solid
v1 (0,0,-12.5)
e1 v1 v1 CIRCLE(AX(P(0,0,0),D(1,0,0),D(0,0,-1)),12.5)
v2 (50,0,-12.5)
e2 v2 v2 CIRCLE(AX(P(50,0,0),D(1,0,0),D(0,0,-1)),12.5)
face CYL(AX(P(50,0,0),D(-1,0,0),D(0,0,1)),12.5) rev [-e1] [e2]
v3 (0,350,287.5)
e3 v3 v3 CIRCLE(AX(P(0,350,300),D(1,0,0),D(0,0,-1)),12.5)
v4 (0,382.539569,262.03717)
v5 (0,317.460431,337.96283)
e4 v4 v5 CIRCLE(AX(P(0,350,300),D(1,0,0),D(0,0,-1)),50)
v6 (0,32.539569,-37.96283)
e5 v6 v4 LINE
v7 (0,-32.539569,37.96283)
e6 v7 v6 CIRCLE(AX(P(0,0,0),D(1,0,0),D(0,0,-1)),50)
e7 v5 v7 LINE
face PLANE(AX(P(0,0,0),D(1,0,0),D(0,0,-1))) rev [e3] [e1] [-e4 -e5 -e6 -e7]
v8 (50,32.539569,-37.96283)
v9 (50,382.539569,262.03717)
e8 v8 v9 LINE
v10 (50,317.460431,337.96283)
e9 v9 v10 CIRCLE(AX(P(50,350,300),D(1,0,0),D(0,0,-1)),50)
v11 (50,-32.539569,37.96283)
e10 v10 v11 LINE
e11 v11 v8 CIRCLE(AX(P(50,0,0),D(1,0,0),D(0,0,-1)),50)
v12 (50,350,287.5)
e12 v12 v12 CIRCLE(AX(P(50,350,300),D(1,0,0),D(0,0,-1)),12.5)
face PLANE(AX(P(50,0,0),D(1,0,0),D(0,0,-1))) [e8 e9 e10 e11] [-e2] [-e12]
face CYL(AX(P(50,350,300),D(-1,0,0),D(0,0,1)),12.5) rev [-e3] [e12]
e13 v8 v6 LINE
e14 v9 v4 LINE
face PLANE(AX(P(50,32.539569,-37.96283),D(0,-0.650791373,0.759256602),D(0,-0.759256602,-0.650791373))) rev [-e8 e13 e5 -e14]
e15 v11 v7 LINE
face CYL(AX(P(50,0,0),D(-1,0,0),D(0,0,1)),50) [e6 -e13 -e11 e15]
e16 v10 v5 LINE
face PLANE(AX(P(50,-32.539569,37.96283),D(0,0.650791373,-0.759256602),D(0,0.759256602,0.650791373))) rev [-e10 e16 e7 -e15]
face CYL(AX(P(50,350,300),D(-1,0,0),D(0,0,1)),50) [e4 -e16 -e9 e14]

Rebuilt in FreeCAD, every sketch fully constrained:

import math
import FreeCAD as App
import Part
import Sketcher
from FreeCAD import Vector

doc = App.newDocument("Part")
body = doc.addObject("PartDesign::Body", "Body")

# Sketch on YZ plane
sketch1 = doc.addObject("Sketcher::SketchObject", "Sketch")
body.addObject(sketch1)
sketch1.AttachmentSupport = (doc.YZ_Plane, [""])
sketch1.MapMode = "FlatFace"
sketch1.addGeometry(Part.LineSegment(Vector(317.460431, 337.96283, 0), Vector(-32.539569, 37.96283, 0)), False)
sketch1.addGeometry(Part.ArcOfCircle(Part.Circle(Vector(0, 0, 0), Vector(0, 0, 1), 50), math.radians(130.601295), math.radians(310.601295)), False)
sketch1.addGeometry(Part.LineSegment(Vector(32.539569, -37.96283, 0), Vector(382.539569, 262.03717, 0)), False)
sketch1.addGeometry(Part.ArcOfCircle(Part.Circle(Vector(350, 300, 0), Vector(0, 0, 1), 50), math.radians(-49.398705), math.radians(130.601295)), False)
sketch1.addGeometry(Part.Circle(Vector(0, 0, 0), Vector(0, 0, 1), 12.5), False)
sketch1.addGeometry(Part.Circle(Vector(350, 300, 0), Vector(0, 0, 1), 12.5), False)
sketch1.addConstraint(Sketcher.Constraint("Tangent", 0, 2, 1, 1))
sketch1.addConstraint(Sketcher.Constraint("Tangent", 1, 2, 2, 1))
sketch1.addConstraint(Sketcher.Constraint("Tangent", 2, 2, 3, 1))
sketch1.addConstraint(Sketcher.Constraint("Tangent", 3, 2, 0, 1))
sketch1.addConstraint(Sketcher.Constraint("Coincident", 1, 3, -1, 1))
sketch1.addConstraint(Sketcher.Constraint("Coincident", 4, 3, -1, 1))
sketch1.addConstraint(Sketcher.Constraint("Coincident", 5, 3, 3, 3))
sketch1.addConstraint(Sketcher.Constraint("Equal", 1, 3))
sketch1.addConstraint(Sketcher.Constraint("Equal", 4, 5))
sketch1.addConstraint(Sketcher.Constraint("Diameter", 4, 25.0))
sketch1.addConstraint(Sketcher.Constraint("Radius", 1, 50.0))
sketch1.addConstraint(Sketcher.Constraint("DistanceX", -1, 1, 3, 3, 350.0))
sketch1.addConstraint(Sketcher.Constraint("DistanceY", -1, 1, 3, 3, 300.0))
pad1 = doc.addObject("PartDesign::Pad", "Pad")
body.addObject(pad1)
pad1.Profile = sketch1
pad1.Length = 50

doc.recompute()
